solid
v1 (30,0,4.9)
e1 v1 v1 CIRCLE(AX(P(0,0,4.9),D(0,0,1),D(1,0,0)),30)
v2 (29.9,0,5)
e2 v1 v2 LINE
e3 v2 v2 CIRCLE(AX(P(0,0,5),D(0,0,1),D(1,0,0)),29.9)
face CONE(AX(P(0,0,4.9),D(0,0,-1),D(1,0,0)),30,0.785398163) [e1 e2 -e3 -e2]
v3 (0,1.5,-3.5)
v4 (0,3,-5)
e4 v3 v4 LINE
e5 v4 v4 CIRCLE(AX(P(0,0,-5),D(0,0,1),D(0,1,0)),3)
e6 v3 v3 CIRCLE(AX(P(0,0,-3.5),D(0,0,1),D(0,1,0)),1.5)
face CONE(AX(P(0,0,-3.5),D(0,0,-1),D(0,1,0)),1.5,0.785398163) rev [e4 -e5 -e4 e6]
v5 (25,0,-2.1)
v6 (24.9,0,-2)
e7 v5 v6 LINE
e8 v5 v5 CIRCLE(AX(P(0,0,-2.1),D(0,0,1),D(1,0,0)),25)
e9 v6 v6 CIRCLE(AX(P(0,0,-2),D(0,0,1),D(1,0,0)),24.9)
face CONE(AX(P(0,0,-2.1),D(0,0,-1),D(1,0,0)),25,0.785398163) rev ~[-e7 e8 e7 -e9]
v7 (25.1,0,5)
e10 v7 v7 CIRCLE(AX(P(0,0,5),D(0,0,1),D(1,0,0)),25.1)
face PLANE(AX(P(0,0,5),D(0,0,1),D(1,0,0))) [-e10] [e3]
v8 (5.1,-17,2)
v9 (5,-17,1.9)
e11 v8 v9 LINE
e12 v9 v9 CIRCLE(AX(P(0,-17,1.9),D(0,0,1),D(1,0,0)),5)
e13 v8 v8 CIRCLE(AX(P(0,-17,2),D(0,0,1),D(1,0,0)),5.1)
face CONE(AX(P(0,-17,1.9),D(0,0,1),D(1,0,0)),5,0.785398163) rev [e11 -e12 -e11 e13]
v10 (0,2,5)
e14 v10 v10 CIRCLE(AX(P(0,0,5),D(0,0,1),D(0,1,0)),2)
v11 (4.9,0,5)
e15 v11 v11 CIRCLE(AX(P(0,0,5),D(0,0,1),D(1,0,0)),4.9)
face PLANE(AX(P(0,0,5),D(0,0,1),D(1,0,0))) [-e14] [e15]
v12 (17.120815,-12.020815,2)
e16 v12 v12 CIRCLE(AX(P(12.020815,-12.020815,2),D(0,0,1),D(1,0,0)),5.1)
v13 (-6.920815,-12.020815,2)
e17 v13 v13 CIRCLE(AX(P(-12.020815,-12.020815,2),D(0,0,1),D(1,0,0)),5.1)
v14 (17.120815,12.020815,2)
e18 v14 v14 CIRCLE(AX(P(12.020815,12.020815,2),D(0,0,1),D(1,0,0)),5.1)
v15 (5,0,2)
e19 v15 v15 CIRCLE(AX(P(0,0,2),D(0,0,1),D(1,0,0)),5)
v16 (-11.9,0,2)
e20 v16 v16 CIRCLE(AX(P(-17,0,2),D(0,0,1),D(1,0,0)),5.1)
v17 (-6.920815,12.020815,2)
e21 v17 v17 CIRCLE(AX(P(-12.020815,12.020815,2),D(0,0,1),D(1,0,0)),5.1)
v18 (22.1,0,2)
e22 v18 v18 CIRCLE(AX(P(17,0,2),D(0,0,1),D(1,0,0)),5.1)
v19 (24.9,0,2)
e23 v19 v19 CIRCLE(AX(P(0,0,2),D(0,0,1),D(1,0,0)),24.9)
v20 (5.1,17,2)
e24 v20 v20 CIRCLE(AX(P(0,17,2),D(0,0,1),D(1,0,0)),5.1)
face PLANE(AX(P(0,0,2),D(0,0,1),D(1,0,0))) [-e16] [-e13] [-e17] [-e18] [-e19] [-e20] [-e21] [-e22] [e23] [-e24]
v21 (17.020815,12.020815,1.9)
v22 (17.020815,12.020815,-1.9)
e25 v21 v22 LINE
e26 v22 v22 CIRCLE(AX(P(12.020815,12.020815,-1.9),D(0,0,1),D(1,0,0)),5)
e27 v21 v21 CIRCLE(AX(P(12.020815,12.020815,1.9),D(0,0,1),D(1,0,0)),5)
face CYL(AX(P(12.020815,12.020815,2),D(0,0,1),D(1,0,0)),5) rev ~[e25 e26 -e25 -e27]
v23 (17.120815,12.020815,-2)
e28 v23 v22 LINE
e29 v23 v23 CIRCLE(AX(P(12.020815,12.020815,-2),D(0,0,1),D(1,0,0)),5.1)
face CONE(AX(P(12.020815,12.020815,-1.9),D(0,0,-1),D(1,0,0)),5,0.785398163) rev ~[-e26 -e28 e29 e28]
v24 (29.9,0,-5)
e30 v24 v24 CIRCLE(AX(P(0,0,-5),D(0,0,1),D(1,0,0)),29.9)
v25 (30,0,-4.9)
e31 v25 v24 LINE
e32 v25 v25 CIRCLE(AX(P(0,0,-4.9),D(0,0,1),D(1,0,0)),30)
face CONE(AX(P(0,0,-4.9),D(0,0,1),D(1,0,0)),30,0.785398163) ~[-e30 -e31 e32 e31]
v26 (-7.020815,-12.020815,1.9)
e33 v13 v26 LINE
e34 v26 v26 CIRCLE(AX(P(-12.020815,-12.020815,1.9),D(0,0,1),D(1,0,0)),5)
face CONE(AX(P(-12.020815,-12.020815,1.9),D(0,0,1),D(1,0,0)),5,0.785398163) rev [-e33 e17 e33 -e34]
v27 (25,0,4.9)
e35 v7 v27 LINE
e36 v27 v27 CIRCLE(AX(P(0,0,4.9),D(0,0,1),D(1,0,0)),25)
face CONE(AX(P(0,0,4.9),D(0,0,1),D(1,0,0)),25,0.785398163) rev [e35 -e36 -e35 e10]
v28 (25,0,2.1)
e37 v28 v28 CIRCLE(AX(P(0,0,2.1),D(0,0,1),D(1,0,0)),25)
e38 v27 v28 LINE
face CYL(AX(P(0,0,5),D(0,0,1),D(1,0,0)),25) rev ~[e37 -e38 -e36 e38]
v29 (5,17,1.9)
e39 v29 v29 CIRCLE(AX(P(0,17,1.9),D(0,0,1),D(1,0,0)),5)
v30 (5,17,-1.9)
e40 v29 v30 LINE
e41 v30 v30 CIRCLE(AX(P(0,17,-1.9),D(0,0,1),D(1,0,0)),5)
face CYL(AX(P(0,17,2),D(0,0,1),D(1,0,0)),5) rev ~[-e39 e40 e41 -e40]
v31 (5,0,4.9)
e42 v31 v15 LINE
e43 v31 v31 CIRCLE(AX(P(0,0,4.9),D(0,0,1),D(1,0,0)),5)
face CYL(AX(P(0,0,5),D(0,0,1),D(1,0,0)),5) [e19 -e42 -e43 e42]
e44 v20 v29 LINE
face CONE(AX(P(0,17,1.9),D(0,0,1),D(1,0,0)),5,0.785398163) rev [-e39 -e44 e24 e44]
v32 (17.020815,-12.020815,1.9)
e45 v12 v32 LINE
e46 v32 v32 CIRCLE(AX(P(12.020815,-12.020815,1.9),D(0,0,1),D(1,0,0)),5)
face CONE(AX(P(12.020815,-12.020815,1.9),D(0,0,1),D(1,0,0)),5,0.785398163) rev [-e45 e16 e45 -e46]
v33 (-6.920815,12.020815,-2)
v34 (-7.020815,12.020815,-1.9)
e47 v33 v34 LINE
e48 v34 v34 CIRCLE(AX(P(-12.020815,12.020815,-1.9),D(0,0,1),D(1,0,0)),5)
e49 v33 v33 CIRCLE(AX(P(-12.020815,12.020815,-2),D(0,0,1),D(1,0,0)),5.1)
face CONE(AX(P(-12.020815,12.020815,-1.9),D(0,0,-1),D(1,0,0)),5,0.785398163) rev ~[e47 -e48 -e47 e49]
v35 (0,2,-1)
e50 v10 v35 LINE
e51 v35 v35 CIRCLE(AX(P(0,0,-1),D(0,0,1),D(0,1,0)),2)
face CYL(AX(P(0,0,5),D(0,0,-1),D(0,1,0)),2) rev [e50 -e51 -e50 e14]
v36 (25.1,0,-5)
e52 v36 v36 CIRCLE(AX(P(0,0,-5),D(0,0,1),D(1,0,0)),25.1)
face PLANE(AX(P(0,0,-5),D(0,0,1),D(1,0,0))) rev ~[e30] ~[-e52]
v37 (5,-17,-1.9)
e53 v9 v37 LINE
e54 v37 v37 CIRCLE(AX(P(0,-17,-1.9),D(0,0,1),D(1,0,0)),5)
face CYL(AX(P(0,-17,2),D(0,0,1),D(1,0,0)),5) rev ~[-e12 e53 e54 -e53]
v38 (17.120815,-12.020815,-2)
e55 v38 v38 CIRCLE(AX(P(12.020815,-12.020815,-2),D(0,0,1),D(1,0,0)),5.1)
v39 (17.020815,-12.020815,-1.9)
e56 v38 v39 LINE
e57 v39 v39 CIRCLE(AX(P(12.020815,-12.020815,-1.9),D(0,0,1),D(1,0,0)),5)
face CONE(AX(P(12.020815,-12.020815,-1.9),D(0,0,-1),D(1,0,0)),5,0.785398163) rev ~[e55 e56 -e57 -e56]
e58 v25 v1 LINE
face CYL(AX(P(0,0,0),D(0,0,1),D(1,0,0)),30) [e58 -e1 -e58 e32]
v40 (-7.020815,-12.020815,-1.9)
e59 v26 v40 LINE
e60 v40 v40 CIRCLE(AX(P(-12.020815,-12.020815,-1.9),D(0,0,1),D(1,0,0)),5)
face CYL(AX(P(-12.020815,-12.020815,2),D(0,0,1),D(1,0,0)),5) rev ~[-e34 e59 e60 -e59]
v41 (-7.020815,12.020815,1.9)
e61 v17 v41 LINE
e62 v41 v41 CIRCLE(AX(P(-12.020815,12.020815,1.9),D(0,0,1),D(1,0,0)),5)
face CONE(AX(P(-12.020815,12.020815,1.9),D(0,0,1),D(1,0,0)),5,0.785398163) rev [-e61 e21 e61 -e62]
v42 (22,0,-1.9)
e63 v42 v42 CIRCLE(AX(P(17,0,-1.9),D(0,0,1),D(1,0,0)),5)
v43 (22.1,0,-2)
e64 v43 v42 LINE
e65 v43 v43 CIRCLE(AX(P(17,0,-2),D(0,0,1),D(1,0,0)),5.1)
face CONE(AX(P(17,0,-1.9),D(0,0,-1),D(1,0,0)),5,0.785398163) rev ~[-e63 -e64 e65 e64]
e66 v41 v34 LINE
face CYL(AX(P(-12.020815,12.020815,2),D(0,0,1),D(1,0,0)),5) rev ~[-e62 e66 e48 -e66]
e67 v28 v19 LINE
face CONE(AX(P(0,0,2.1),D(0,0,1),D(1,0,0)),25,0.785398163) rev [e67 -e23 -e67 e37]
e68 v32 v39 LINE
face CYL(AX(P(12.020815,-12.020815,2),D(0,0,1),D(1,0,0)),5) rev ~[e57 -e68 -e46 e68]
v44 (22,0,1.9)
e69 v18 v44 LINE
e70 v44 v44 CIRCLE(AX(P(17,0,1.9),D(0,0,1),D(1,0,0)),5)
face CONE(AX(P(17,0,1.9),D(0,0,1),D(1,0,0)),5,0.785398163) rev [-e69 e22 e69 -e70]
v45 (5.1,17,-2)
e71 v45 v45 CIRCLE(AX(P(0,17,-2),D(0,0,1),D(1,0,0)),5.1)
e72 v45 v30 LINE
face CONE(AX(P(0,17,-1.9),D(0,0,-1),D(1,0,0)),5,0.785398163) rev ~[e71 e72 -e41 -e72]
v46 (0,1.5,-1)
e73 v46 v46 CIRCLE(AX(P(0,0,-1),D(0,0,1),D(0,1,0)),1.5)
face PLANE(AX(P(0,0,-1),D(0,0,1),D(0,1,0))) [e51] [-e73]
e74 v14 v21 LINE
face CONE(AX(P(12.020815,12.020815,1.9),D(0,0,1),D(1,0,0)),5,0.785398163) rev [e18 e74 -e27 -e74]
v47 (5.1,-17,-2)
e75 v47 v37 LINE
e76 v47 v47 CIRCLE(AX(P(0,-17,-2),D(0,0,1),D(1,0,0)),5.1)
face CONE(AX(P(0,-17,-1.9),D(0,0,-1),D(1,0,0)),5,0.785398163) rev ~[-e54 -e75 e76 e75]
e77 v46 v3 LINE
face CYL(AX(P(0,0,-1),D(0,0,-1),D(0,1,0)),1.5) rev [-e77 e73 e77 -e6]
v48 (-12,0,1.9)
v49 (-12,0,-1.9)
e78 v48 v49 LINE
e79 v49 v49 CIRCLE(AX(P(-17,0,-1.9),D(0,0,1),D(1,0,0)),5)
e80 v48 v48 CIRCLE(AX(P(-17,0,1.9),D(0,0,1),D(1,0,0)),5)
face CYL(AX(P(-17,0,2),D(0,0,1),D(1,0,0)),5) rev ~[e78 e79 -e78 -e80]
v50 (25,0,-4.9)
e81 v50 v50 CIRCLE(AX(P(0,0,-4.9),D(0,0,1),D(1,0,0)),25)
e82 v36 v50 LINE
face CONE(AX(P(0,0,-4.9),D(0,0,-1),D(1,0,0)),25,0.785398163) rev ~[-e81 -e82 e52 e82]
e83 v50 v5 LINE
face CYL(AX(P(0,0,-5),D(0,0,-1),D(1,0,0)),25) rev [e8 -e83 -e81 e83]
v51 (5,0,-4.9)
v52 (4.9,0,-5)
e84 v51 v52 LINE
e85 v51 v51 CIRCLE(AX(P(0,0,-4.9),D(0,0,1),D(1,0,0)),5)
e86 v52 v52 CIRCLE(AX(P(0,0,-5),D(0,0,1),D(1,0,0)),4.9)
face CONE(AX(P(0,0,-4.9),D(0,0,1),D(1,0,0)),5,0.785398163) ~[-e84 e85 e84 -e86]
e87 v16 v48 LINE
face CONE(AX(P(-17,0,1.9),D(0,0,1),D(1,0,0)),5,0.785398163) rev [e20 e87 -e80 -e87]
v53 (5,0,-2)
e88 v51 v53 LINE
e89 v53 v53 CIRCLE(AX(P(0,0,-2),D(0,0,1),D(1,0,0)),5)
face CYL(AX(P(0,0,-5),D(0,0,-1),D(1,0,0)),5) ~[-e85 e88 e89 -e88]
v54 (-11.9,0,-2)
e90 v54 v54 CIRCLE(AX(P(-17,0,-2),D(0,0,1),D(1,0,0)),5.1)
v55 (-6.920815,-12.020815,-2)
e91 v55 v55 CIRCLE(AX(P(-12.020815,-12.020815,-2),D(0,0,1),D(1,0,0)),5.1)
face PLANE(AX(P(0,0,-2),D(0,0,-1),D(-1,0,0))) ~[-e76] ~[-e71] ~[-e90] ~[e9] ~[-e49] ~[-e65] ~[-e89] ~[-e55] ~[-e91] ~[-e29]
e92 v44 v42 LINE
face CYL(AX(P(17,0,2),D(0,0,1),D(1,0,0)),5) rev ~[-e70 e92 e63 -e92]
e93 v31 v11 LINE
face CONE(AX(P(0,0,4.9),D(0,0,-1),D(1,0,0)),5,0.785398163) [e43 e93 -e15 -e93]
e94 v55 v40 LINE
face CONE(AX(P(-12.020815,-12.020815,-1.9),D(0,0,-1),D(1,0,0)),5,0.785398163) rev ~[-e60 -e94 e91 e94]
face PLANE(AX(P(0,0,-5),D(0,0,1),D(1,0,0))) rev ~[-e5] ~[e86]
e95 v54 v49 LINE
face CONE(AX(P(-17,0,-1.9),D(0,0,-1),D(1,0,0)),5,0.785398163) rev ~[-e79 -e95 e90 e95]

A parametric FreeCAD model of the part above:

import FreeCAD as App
import Part
import Sketcher
Q = App.Units.Quantity


def edges_at(feature, points):
    """Names of the edges that pass closest to the given points."""
    edges = feature.Shape.Edges
    near = lambda p: min(range(len(edges)), key=lambda i: edges[i].distToShape(Part.Vertex(*p))[0])
    return sorted({f"Edge{near(p) + 1}" for p in points})


def add_polygon(sketch, points):
    """Adds a closed chain of lines whose ends are joined by coincident constraints."""
    first, n = sketch.GeometryCount, len(points)
    for a, b in zip(points, points[1:] + points[:1]):
        sketch.addGeometry(Part.LineSegment(App.Vector(*a, 0), App.Vector(*b, 0)), False)
    for i in range(n):
        sketch.addConstraint(Sketcher.Constraint("Coincident", first + i, 2, first + (i + 1) % n, 1))

doc = App.newDocument("Part")
body = doc.addObject("PartDesign::Body", "Body")

# Sketch on XY plane
sketch1 = body.newObject("Sketcher::SketchObject", "Sketch")
sketch1.AttachmentSupport = (doc.getObject("XY_Plane"), [""])
sketch1.MapMode = "FlatFace"
sketch1.addGeometry(Part.Circle(App.Vector(0, 0, 0), App.Vector(0, 0, 1), 30), False)
sketch1.addConstraint([
    Sketcher.Constraint("Coincident", 0, 3, -1, 1),
    Sketcher.Constraint("Diameter", 0, 60.0),
])
pad1 = body.newObject("PartDesign::Pad", "Pad")
pad1.Profile = sketch1
pad1.Length = 10
pad1.Midplane = True

# Sketch on XY plane
sketch2 = body.newObject("Sketcher::SketchObject", "Sketch001")
sketch2.AttachmentSupport = (doc.getObject("XY_Plane"), [""])
sketch2.MapMode = "FlatFace"
sketch2.AttachmentOffset = App.Placement(App.Vector(0, 0, 5), App.Rotation())
sketch2.addGeometry([
    Part.Circle(App.Vector(0, 0, 0), App.Vector(0, 0, 1), 25),
    Part.Circle(App.Vector(0, 0, 0), App.Vector(0, 0, 1), 5),
], False)
sketch2.addConstraint([
    Sketcher.Constraint("Coincident", 0, 3, -1, 1),
    Sketcher.Constraint("Coincident", 1, 3, -1, 1),
    Sketcher.Constraint("Diameter", 0, 50.0),
    Sketcher.Constraint("Diameter", 1, 10.0),
])
pocket1 = body.newObject("PartDesign::Pocket", "Pocket")
pocket1.Profile = sketch2
pocket1.Length = 3
doc.recompute()

mirrored = body.newObject("PartDesign::Mirrored", "Mirrored")
mirrored.Originals = [pocket1]
mirrored.MirrorPlane = (doc.getObject("XY_Plane"), [""])
body.Tip = mirrored

# Sketch on XY plane
sketch3 = body.newObject("Sketcher::SketchObject", "Sketch002")
sketch3.AttachmentSupport = (doc.getObject("XY_Plane"), [""])
sketch3.MapMode = "FlatFace"
sketch3.AttachmentOffset = App.Placement(App.Vector(0, 0, 2), App.Rotation())
sketch3.addGeometry([
    Part.Circle(App.Vector(0, 17, 0), App.Vector(0, 0, 1), 5),  # 0
    Part.Circle(App.Vector(12.020815, 12.020815, 0), App.Vector(0, 0, 1), 5),  # 1
    Part.Circle(App.Vector(17, 0, 0), App.Vector(0, 0, 1), 5),  # 2
    Part.Circle(App.Vector(12.020815, -12.020815, 0), App.Vector(0, 0, 1), 5),  # 3
    Part.Circle(App.Vector(0, -17, 0), App.Vector(0, 0, 1), 5),  # 4
    Part.Circle(App.Vector(-12.020815, -12.020815, 0), App.Vector(0, 0, 1), 5),  # 5
    Part.Circle(App.Vector(-17, 0, 0), App.Vector(0, 0, 1), 5),  # 6
    Part.Circle(App.Vector(-12.020815, 12.020815, 0), App.Vector(0, 0, 1), 5),  # 7
], False)
sketch3.addConstraint([
    Sketcher.Constraint("Equal", 0, 1),
    Sketcher.Constraint("Equal", 1, 2),
    Sketcher.Constraint("Equal", 2, 3),
    Sketcher.Constraint("Equal", 3, 4),
    Sketcher.Constraint("Equal", 4, 5),
    Sketcher.Constraint("Equal", 5, 6),
    Sketcher.Constraint("Equal", 6, 7),
    Sketcher.Constraint("Symmetric", 0, 3, 4, 3, -1, 1),
    Sketcher.Constraint("Symmetric", 1, 3, 5, 3, -1, 1),
    Sketcher.Constraint("Symmetric", 2, 3, 6, 3, -1, 1),
    Sketcher.Constraint("Symmetric", 3, 3, 7, 3, -1, 1),
    Sketcher.Constraint("Symmetric", 3, 3, 5, 3, -2),
    Sketcher.Constraint("PointOnObject", 0, 3, -2),
    Sketcher.Constraint("PointOnObject", 2, 3, -1),
    Sketcher.Constraint("Diameter", 0, 10.0),
    Sketcher.Constraint("DistanceY", -1, 1, 0, 3, 17.0),
    Sketcher.Constraint("DistanceX", -1, 1, 2, 3, 17.0),
    Sketcher.Constraint("DistanceY", 3, 3, 1, 3, 24.041631),
    Sketcher.Constraint("DistanceX", 5, 3, 3, 3, 24.041631),
])
pocket2 = body.newObject("PartDesign::Pocket", "Pocket001")
pocket2.Profile = sketch3
pocket2.Type = "ThroughAll"
doc.recompute()

chamfer = body.newObject("PartDesign::Chamfer", "Chamfer")
chamfer.Base = (pocket2, edges_at(pocket2, [
    (-25, 0, -2),
    (-5, 0, -5),
    (-25, 0, -5),
    (-30, 0, -5),
    (-17.021, 12.021, -2),
    (-17.021, 12.021, 2),
    (-22, 0, -2),
    (-22, 0, 2),
    (-17.021, -12.021, -2),
    (-17.021, -12.021, 2),
    (-5, -17, -2),
    (-5, -17, 2),
    (7.021, -12.021, -2),
    (7.021, -12.021, 2),
    (12, 0, -2),
    (12, 0, 2),
    (7.021, 12.021, -2),
    (7.021, 12.021, 2),
    (-5, 17, -2),
    (-5, 17, 2),
    (-30, 0, 5),
    (-25, 0, 2),
    (-25, 0, 5),
    (-5, 0, 5),
]))
chamfer.Size = 0.1

# Sketch on YZ plane
sketch4 = body.newObject("Sketcher::SketchObject", "Sketch003")
sketch4.AttachmentSupport = (doc.getObject("YZ_Plane"), [""])
sketch4.MapMode = "FlatFace"
add_polygon(sketch4, [(2, 5), (0, 5), (0, -5), (3, -5), (1.5, -3.5), (1.5, -1), (2, -1)])  # lines 0-6
sketch4.addConstraint([
    Sketcher.Constraint("Horizontal", 0),
    Sketcher.Constraint("Vertical", 1),
    Sketcher.Constraint("Horizontal", 2),
    Sketcher.Constraint("Vertical", 4),
    Sketcher.Constraint("Horizontal", 5),
    Sketcher.Constraint("Vertical", 6),
    Sketcher.Constraint("Symmetric", 0, 2, 1, 2, -1, 1),
    Sketcher.Constraint("DistanceX", 0, 2, 0, 1, 2.0),
    Sketcher.Constraint("DistanceX", 2, 1, 2, 2, 3.0),
    Sketcher.Constraint("DistanceY", 1, 2, 1, 1, 10.0),
    Sketcher.Constraint("DistanceY", 6, 1, 6, 2, 6.0),
    Sketcher.Constraint("Angle", 3, Q("135 deg")),
    Sketcher.Constraint("DistanceX", 5, 1, 5, 2, 0.5),
])
groove = body.newObject("PartDesign::Groove", "Groove")
groove.Profile = sketch4
groove.ReferenceAxis = (sketch4, ["V_Axis"])
groove.Angle = 360

doc.recompute()
